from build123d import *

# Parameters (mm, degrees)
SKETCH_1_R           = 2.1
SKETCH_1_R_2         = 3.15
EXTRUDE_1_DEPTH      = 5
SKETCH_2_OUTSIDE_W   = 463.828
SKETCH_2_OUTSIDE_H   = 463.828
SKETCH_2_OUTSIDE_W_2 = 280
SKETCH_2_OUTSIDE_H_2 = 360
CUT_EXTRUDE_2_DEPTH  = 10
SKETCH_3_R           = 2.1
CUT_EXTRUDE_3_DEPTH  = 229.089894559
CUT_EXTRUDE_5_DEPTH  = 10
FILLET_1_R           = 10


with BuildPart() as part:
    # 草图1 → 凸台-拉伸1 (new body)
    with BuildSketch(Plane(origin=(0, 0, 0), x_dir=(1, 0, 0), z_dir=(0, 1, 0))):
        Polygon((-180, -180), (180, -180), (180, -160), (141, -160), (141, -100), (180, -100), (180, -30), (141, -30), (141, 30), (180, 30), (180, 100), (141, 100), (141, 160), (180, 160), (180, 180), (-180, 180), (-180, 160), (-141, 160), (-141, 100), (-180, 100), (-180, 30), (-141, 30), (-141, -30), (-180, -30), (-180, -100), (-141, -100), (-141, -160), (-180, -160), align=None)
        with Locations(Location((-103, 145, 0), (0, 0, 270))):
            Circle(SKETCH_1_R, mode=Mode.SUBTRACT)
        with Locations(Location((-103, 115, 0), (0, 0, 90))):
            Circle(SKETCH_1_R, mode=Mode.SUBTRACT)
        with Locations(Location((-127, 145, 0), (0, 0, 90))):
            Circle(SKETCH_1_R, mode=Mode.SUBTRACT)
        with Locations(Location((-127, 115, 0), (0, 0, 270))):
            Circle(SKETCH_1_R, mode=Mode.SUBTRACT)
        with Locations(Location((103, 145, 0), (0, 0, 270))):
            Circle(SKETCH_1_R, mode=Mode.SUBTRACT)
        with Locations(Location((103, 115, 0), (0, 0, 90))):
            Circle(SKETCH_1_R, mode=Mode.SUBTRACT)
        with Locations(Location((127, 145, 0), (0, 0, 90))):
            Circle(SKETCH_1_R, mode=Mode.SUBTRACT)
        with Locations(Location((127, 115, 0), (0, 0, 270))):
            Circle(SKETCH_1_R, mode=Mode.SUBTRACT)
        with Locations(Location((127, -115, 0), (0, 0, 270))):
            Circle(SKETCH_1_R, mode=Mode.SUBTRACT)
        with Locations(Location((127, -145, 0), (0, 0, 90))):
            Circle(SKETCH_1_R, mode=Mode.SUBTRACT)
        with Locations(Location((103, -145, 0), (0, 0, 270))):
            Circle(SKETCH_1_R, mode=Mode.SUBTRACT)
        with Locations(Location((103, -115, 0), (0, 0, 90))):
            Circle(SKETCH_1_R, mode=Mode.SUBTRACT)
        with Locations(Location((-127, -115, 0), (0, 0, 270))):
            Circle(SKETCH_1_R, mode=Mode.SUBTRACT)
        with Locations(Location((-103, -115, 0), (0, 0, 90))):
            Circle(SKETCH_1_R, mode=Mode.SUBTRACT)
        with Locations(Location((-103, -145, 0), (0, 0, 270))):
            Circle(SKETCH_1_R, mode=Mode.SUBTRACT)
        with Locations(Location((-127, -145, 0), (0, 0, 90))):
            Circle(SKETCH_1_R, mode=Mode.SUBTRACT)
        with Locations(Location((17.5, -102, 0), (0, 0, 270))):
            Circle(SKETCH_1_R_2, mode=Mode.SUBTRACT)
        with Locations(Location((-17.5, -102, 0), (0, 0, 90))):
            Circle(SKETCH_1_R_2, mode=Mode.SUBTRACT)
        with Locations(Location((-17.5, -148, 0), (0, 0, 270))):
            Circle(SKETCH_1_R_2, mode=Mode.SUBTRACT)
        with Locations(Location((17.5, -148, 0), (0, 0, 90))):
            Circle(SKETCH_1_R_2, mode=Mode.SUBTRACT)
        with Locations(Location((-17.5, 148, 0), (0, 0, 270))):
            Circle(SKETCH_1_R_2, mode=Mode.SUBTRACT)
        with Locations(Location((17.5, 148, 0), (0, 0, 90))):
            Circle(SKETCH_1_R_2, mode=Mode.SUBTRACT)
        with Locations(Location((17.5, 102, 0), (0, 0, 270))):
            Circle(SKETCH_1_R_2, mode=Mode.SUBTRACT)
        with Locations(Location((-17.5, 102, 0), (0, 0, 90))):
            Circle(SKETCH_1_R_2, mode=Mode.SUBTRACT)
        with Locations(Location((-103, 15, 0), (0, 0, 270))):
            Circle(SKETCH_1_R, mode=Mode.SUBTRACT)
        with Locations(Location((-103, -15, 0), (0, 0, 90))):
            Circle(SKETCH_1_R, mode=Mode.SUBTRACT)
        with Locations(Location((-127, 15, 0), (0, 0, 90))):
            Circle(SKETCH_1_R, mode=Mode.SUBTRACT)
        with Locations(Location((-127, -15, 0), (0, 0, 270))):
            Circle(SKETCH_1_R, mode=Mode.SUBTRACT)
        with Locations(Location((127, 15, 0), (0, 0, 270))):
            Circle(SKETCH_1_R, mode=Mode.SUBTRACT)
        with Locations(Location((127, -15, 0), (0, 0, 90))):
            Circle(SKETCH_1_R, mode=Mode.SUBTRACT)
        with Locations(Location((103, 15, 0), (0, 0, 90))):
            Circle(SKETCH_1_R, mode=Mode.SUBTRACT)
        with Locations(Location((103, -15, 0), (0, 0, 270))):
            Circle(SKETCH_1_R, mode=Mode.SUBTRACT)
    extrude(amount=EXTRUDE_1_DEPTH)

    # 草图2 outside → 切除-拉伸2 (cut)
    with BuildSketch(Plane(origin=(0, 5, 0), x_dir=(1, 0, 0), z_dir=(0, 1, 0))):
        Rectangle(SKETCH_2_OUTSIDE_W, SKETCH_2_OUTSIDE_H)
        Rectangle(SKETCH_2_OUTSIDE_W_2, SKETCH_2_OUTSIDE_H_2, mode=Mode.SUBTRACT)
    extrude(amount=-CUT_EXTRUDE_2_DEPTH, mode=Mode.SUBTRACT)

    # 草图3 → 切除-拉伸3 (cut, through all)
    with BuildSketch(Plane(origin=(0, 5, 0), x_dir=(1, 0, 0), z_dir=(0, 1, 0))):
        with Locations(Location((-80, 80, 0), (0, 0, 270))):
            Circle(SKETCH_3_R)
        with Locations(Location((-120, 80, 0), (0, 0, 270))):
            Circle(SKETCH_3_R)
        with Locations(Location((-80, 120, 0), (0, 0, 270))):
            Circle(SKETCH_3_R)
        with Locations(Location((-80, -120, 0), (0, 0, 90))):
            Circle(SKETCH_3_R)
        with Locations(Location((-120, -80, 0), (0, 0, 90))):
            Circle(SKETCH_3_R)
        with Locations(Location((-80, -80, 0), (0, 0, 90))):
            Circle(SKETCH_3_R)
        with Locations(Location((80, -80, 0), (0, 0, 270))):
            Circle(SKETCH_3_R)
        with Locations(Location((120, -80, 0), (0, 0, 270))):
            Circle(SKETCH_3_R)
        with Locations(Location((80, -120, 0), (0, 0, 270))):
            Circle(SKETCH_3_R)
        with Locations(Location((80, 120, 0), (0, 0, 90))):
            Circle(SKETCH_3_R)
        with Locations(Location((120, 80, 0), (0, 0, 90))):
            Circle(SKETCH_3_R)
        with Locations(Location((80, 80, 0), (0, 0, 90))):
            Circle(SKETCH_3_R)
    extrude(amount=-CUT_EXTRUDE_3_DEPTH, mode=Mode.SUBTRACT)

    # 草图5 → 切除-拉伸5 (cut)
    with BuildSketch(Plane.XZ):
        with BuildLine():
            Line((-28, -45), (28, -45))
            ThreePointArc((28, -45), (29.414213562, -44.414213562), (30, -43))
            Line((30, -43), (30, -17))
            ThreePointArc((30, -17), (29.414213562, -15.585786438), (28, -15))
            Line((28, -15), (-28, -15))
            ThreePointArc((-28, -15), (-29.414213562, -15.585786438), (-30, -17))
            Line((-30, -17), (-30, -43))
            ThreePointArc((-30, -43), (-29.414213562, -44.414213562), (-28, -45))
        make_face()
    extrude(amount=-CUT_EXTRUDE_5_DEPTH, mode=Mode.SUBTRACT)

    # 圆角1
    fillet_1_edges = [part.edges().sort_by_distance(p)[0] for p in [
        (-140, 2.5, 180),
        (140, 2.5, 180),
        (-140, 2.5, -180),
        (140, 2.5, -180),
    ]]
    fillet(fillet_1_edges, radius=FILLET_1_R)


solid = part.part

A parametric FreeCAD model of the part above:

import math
import FreeCAD as App
import Part
import Sketcher
from FreeCAD import Vector


def edges_at(feature, points):
    """Names of the edges that pass closest to the given points."""
    edges = feature.Shape.Edges
    near = lambda p: min(range(len(edges)), key=lambda i: edges[i].distToShape(Part.Vertex(*p))[0])
    return sorted({f"Edge{near(p) + 1}" for p in points})

doc = App.newDocument("Part")
body = doc.addObject("PartDesign::Body", "Body")

sketch1 = body.newObject("Sketcher::SketchObject", "Sketch")
sketch1.AttachmentSupport = (doc.getObject("XZ_Plane"), [""])
sketch1.MapMode = "FlatFace"
sketch1.addGeometry([
    Part.LineSegment(Vector(-180, 180, 0), Vector(180, 180, 0)),
    Part.LineSegment(Vector(180, 180, 0), Vector(180, 160, 0)),
    Part.LineSegment(Vector(180, 160, 0), Vector(141, 160, 0)),
    Part.LineSegment(Vector(141, 160, 0), Vector(141, 100, 0)),
    Part.LineSegment(Vector(141, 100, 0), Vector(180, 100, 0)),
    Part.LineSegment(Vector(180, 100, 0), Vector(180, 30, 0)),
    Part.LineSegment(Vector(180, 30, 0), Vector(141, 30, 0)),
    Part.LineSegment(Vector(141, 30, 0), Vector(141, -30, 0)),
    Part.LineSegment(Vector(141, -30, 0), Vector(180, -30, 0)),
    Part.LineSegment(Vector(180, -30, 0), Vector(180, -100, 0)),
    Part.LineSegment(Vector(180, -100, 0), Vector(141, -100, 0)),
    Part.LineSegment(Vector(141, -100, 0), Vector(141, -160, 0)),
    Part.LineSegment(Vector(141, -160, 0), Vector(180, -160, 0)),
    Part.LineSegment(Vector(180, -160, 0), Vector(180, -180, 0)),
    Part.LineSegment(Vector(180, -180, 0), Vector(-180, -180, 0)),
    Part.LineSegment(Vector(-180, -180, 0), Vector(-180, -160, 0)),
    Part.LineSegment(Vector(-180, -160, 0), Vector(-141, -160, 0)),
    Part.LineSegment(Vector(-141, -160, 0), Vector(-141, -100, 0)),
    Part.LineSegment(Vector(-141, -100, 0), Vector(-180, -100, 0)),
    Part.LineSegment(Vector(-180, -100, 0), Vector(-180, -30, 0)),
    Part.LineSegment(Vector(-180, -30, 0), Vector(-141, -30, 0)),
    Part.LineSegment(Vector(-141, -30, 0), Vector(-141, 30, 0)),
    Part.LineSegment(Vector(-141, 30, 0), Vector(-180, 30, 0)),
    Part.LineSegment(Vector(-180, 30, 0), Vector(-180, 100, 0)),
    Part.LineSegment(Vector(-180, 100, 0), Vector(-141, 100, 0)),
    Part.LineSegment(Vector(-141, 100, 0), Vector(-141, 160, 0)),
    Part.LineSegment(Vector(-141, 160, 0), Vector(-180, 160, 0)),
    Part.LineSegment(Vector(-180, 160, 0), Vector(-180, 180, 0)),
    Part.Circle(Vector(-127, 145, 0), Vector(0, 0, 1), 2.1),
    Part.Circle(Vector(-103, 145, 0), Vector(0, 0, 1), 2.1),
    Part.Circle(Vector(-127, 115, 0), Vector(0, 0, 1), 2.1),
    Part.Circle(Vector(-103, 115, 0), Vector(0, 0, 1), 2.1),
    Part.Circle(Vector(-17.5, 148, 0), Vector(0, 0, 1), 3.1),
    Part.Circle(Vector(-17.5, 102, 0), Vector(0, 0, 1), 3.1),
    Part.Circle(Vector(-127, 15, 0), Vector(0, 0, 1), 2.1),
    Part.Circle(Vector(-103, 15, 0), Vector(0, 0, 1), 2.1),
    Part.Circle(Vector(17.5, 148, 0), Vector(0, 0, 1), 3.1),
    Part.Circle(Vector(17.5, 102, 0), Vector(0, 0, 1), 3.1),
    Part.Circle(Vector(103, 145, 0), Vector(0, 0, 1), 2.1),
    Part.Circle(Vector(127, 145, 0), Vector(0, 0, 1), 2.1),
    Part.Circle(Vector(103, 115, 0), Vector(0, 0, 1), 2.1),
    Part.Circle(Vector(127, 115, 0), Vector(0, 0, 1), 2.1),
    Part.Circle(Vector(103, 15, 0), Vector(0, 0, 1), 2.1),
    Part.Circle(Vector(127, 15, 0), Vector(0, 0, 1), 2.1),
    Part.Circle(Vector(-127, -15, 0), Vector(0, 0, 1), 2.1),
    Part.Circle(Vector(-103, -15, 0), Vector(0, 0, 1), 2.1),
    Part.Circle(Vector(-127, -115, 0), Vector(0, 0, 1), 2.1),
    Part.Circle(Vector(-103, -115, 0), Vector(0, 0, 1), 2.1),
    Part.Circle(Vector(-127, -145, 0), Vector(0, 0, 1), 2.1),
    Part.Circle(Vector(-103, -145, 0), Vector(0, 0, 1), 2.1),
    Part.Circle(Vector(-17.5, -102, 0), Vector(0, 0, 1), 3.1),
    Part.Circle(Vector(-17.5, -148, 0), Vector(0, 0, 1), 3.1),
    Part.Circle(Vector(103, -15, 0), Vector(0, 0, 1), 2.1),
    Part.Circle(Vector(127, -15, 0), Vector(0, 0, 1), 2.1),
    Part.Circle(Vector(17.5, -102, 0), Vector(0, 0, 1), 3.1),
    Part.Circle(Vector(17.5, -148, 0), Vector(0, 0, 1), 3.1),
    Part.Circle(Vector(103, -115, 0), Vector(0, 0, 1), 2.1),
    Part.Circle(Vector(127, -115, 0), Vector(0, 0, 1), 2.1),
    Part.Circle(Vector(103, -145, 0), Vector(0, 0, 1), 2.1),
    Part.Circle(Vector(127, -145, 0), Vector(0, 0, 1), 2.1),
], False)
sketch1.addConstraint([
    Sketcher.Constraint("Coincident", 0, 2, 1, 1),
    Sketcher.Constraint("Coincident", 1, 2, 2, 1),
    Sketcher.Constraint("Coincident", 2, 2, 3, 1),
    Sketcher.Constraint("Coincident", 3, 2, 4, 1),
    Sketcher.Constraint("Coincident", 4, 2, 5, 1),
    Sketcher.Constraint("Coincident", 5, 2, 6, 1),
    Sketcher.Constraint("Coincident", 6, 2, 7, 1),
    Sketcher.Constraint("Coincident", 7, 2, 8, 1),
    Sketcher.Constraint("Coincident", 8, 2, 9, 1),
    Sketcher.Constraint("Coincident", 9, 2, 10, 1),
    Sketcher.Constraint("Coincident", 10, 2, 11, 1),
    Sketcher.Constraint("Coincident", 11, 2, 12, 1),
    Sketcher.Constraint("Coincident", 12, 2, 13, 1),
    Sketcher.Constraint("Coincident", 13, 2, 14, 1),
    Sketcher.Constraint("Coincident", 14, 2, 15, 1),
    Sketcher.Constraint("Coincident", 15, 2, 16, 1),
    Sketcher.Constraint("Coincident", 16, 2, 17, 1),
    Sketcher.Constraint("Coincident", 17, 2, 18, 1),
    Sketcher.Constraint("Coincident", 18, 2, 19, 1),
    Sketcher.Constraint("Coincident", 19, 2, 20, 1),
    Sketcher.Constraint("Coincident", 20, 2, 21, 1),
    Sketcher.Constraint("Coincident", 21, 2, 22, 1),
    Sketcher.Constraint("Coincident", 22, 2, 23, 1),
    Sketcher.Constraint("Coincident", 23, 2, 24, 1),
    Sketcher.Constraint("Coincident", 24, 2, 25, 1),
    Sketcher.Constraint("Coincident", 25, 2, 26, 1),
    Sketcher.Constraint("Coincident", 26, 2, 27, 1),
    Sketcher.Constraint("Coincident", 27, 2, 0, 1),
    Sketcher.Constraint("Horizontal", 0),
    Sketcher.Constraint("Vertical", 1),
    Sketcher.Constraint("Horizontal", 2),
    Sketcher.Constraint("Vertical", 3),
    Sketcher.Constraint("Horizontal", 4),
    Sketcher.Constraint("Vertical", 5),
    Sketcher.Constraint("Horizontal", 6),
    Sketcher.Constraint("Vertical", 7),
    Sketcher.Constraint("Horizontal", 8),
    Sketcher.Constraint("Vertical", 9),
    Sketcher.Constraint("Horizontal", 10),
    Sketcher.Constraint("Vertical", 11),
    Sketcher.Constraint("Horizontal", 12),
    Sketcher.Constraint("Vertical", 13),
    Sketcher.Constraint("Horizontal", 14),
    Sketcher.Constraint("Vertical", 15),
    Sketcher.Constraint("Horizontal", 16),
    Sketcher.Constraint("Vertical", 17),
    Sketcher.Constraint("Horizontal", 18),
    Sketcher.Constraint("Vertical", 19),
    Sketcher.Constraint("Horizontal", 20),
    Sketcher.Constraint("Vertical", 21),
    Sketcher.Constraint("Horizontal", 22),
    Sketcher.Constraint("Vertical", 23),
    Sketcher.Constraint("Horizontal", 24),
    Sketcher.Constraint("Vertical", 25),
    Sketcher.Constraint("Horizontal", 26),
    Sketcher.Constraint("Vertical", 27),
    Sketcher.Constraint("Equal", 28, 29),
    Sketcher.Constraint("Equal", 29, 30),
    Sketcher.Constraint("Equal", 30, 31),
    Sketcher.Constraint("Equal", 32, 33),
    Sketcher.Constraint("Equal", 31, 34),
    Sketcher.Constraint("Equal", 34, 35),
    Sketcher.Constraint("Equal", 33, 36),
    Sketcher.Constraint("Equal", 36, 37),
    Sketcher.Constraint("Equal", 35, 38),
    Sketcher.Constraint("Equal", 38, 39),
    Sketcher.Constraint("Equal", 39, 40),
    Sketcher.Constraint("Equal", 40, 41),
    Sketcher.Constraint("Equal", 41, 42),
    Sketcher.Constraint("Equal", 42, 43),
    Sketcher.Constraint("Equal", 43, 44),
    Sketcher.Constraint("Equal", 44, 45),
    Sketcher.Constraint("Equal", 45, 46),
    Sketcher.Constraint("Equal", 46, 47),
    Sketcher.Constraint("Equal", 47, 48),
    Sketcher.Constraint("Equal", 48, 49),
    Sketcher.Constraint("Equal", 37, 50),
    Sketcher.Constraint("Equal", 50, 51),
    Sketcher.Constraint("Equal", 49, 52),
    Sketcher.Constraint("Equal", 52, 53),
    Sketcher.Constraint("Equal", 51, 54),
    Sketcher.Constraint("Equal", 54, 55),
    Sketcher.Constraint("Equal", 53, 56),
    Sketcher.Constraint("Equal", 56, 57),
    Sketcher.Constraint("Equal", 57, 58),
    Sketcher.Constraint("Equal", 58, 59),
    Sketcher.Constraint("Symmetric", 43, 3, 44, 3, -1, 1),
    Sketcher.Constraint("Symmetric", 42, 3, 45, 3, -1, 1),
    Sketcher.Constraint("Symmetric", 41, 3, 46, 3, -1, 1),
    Sketcher.Constraint("Symmetric", 40, 3, 47, 3, -1, 1),
    Sketcher.Constraint("Symmetric", 39, 3, 48, 3, -1, 1),
    Sketcher.Constraint("Symmetric", 38, 3, 49, 3, -1, 1),
    Sketcher.Constraint("Symmetric", 37, 3, 50, 3, -1, 1),
    Sketcher.Constraint("Symmetric", 36, 3, 51, 3, -1, 1),
    Sketcher.Constraint("Symmetric", 35, 3, 52, 3, -1, 1),
    Sketcher.Constraint("Symmetric", 34, 3, 53, 3, -1, 1),
    Sketcher.Constraint("Symmetric", 33, 3, 54, 3, -1, 1),
    Sketcher.Constraint("Symmetric", 32, 3, 55, 3, -1, 1),
    Sketcher.Constraint("Symmetric", 31, 3, 56, 3, -1, 1),
    Sketcher.Constraint("Symmetric", 30, 3, 57, 3, -1, 1),
    Sketcher.Constraint("Symmetric", 29, 3, 58, 3, -1, 1),
    Sketcher.Constraint("Symmetric", 28, 3, 59, 3, -1, 1),
    Sketcher.Constraint("Symmetric", 0, 2, 14, 2, -1, 1),
    Sketcher.Constraint("Symmetric", 2, 2, 16, 2, -1, 1),
    Sketcher.Constraint("Symmetric", 4, 2, 18, 2, -1, 1),
    Sketcher.Constraint("Symmetric", 6, 2, 20, 2, -1, 1),
    Sketcher.Constraint("Symmetric", 8, 2, 22, 2, -1, 1),
    Sketcher.Constraint("Symmetric", 10, 2, 24, 2, -1, 1),
    Sketcher.Constraint("Symmetric", 12, 2, 26, 2, -1, 1),
    Sketcher.Constraint("Symmetric", 32, 3, 36, 3, -2),
    Sketcher.Constraint("Symmetric", 33, 3, 37, 3, -2),
    Sketcher.Constraint("Symmetric", 29, 3, 38, 3, -2),
    Sketcher.Constraint("Symmetric", 28, 3, 39, 3, -2),
    Sketcher.Constraint("Symmetric", 31, 3, 40, 3, -2),
    Sketcher.Constraint("Symmetric", 30, 3, 41, 3, -2),
    Sketcher.Constraint("Symmetric", 35, 3, 42, 3, -2),
    Sketcher.Constraint("Symmetric", 34, 3, 43, 3, -2),
    Sketcher.Constraint("Symmetric", 12, 2, 15, 2, -2),
    Sketcher.Constraint("Symmetric", 10, 2, 17, 2, -2),
    Sketcher.Constraint("Symmetric", 8, 2, 19, 2, -2),
    Sketcher.Constraint("Horizontal", 28, 3, 29, 3),
    Sketcher.Constraint("Horizontal", 30, 3, 31, 3),
    Sketcher.Constraint("Horizontal", 34, 3, 35, 3),
    Sketcher.Constraint("Vertical", 28, 3, 30, 3),
    Sketcher.Constraint("Vertical", 29, 3, 31, 3),
    Sketcher.Constraint("Vertical", 32, 3, 33, 3),
    Sketcher.Constraint("Vertical", 30, 3, 34, 3),
    Sketcher.Constraint("Vertical", 31, 3, 35, 3),
    Sketcher.Constraint("Vertical", 1, 2, 4, 2),
    Sketcher.Constraint("Vertical", 3, 2, 6, 2),
    Sketcher.Constraint("Equal", 3, 7),
    Sketcher.Constraint("Diameter", 28, 4.2),
    Sketcher.Constraint("Diameter", 32, 6.3),
    Sketcher.Constraint("DistanceX", 0, 1, 0, 2, 360.0),
    Sketcher.Constraint("DistanceX", 2, 2, 2, 1, 39.0),
    Sketcher.Constraint("DistanceY", 1, 2, 1, 1, 20.0),
    Sketcher.Constraint("DistanceY", 3, 2, 3, 1, 60.0),
    Sketcher.Constraint("DistanceY", 5, 2, 5, 1, 70.0),
    Sketcher.Constraint("DistanceX", 28, 3, -1, 1, 127.0),
    Sketcher.Constraint("DistanceY", -1, 1, 28, 3, 145.0),
    Sketcher.Constraint("DistanceX", 29, 3, -1, 1, 103.0),
    Sketcher.Constraint("DistanceY", -1, 1, 30, 3, 115.0),
    Sketcher.Constraint("DistanceY", -1, 1, 32, 3, 148.0),
    Sketcher.Constraint("DistanceY", -1, 1, 33, 3, 102.0),
    Sketcher.Constraint("DistanceY", -1, 1, 34, 3, 15.0),
    Sketcher.Constraint("DistanceX", 32, 3, 36, 3, 35.0),
])
pad1 = body.newObject("PartDesign::Pad", "Pad")
pad1.Profile = sketch1
pad1.Length = 5
pad1.Reversed = True

sketch2 = body.newObject("Sketcher::SketchObject", "Sketch001")
sketch2.AttachmentSupport = (doc.getObject("XZ_Plane"), [""])
sketch2.MapMode = "FlatFace"
sketch2.AttachmentOffset = App.Placement(Vector(0, 0, -5), App.Rotation())
sketch2.addGeometry([
    Part.LineSegment(Vector(-232, -232, 0), Vector(-232, 232, 0)),
    Part.LineSegment(Vector(-232, 232, 0), Vector(232, 232, 0)),
    Part.LineSegment(Vector(232, 232, 0), Vector(232, -232, 0)),
    Part.LineSegment(Vector(232, -232, 0), Vector(-232, -232, 0)),
    Part.LineSegment(Vector(140, 180, 0), Vector(-140, 180, 0)),
    Part.LineSegment(Vector(-140, 180, 0), Vector(-140, -180, 0)),
    Part.LineSegment(Vector(-140, -180, 0), Vector(140, -180, 0)),
    Part.LineSegment(Vector(140, -180, 0), Vector(140, 180, 0)),
], False)
sketch2.addConstraint([
    Sketcher.Constraint("Coincident", 0, 2, 1, 1),
    Sketcher.Constraint("Coincident", 1, 2, 2, 1),
    Sketcher.Constraint("Coincident", 2, 2, 3, 1),
    Sketcher.Constraint("Coincident", 3, 2, 0, 1),
    Sketcher.Constraint("Coincident", 4, 2, 5, 1),
    Sketcher.Constraint("Coincident", 5, 2, 6, 1),
    Sketcher.Constraint("Coincident", 6, 2, 7, 1),
    Sketcher.Constraint("Coincident", 7, 2, 4, 1),
    Sketcher.Constraint("Vertical", 0),
    Sketcher.Constraint("Horizontal", 1),
    Sketcher.Constraint("Vertical", 2),
    Sketcher.Constraint("Horizontal", 3),
    Sketcher.Constraint("Horizontal", 4),
    Sketcher.Constraint("Vertical", 5),
    Sketcher.Constraint("Horizontal", 6),
    Sketcher.Constraint("Vertical", 7),
    Sketcher.Constraint("Symmetric", 0, 2, 2, 2, -1, 1),
    Sketcher.Constraint("Symmetric", 4, 2, 6, 2, -1, 1),
    Sketcher.Constraint("Equal", 3, 0),
    Sketcher.Constraint("DistanceX", 4, 2, 4, 1, 280.0),
    Sketcher.Constraint("DistanceY", 5, 2, 5, 1, 360.0),
    Sketcher.Constraint("DistanceX", 1, 1, 1, 2, 463.828),
])
pocket1 = body.newObject("PartDesign::Pocket", "Pocket")
pocket1.Profile = sketch2
pocket1.Length = 10
pocket1.Reversed = True

sketch3 = body.newObject("Sketcher::SketchObject", "Sketch002")
sketch3.AttachmentSupport = (doc.getObject("XZ_Plane"), [""])
sketch3.MapMode = "FlatFace"
sketch3.AttachmentOffset = App.Placement(Vector(0, 0, -5), App.Rotation())
sketch3.addGeometry([
    Part.Circle(Vector(-80, -80, 0), Vector(0, 0, 1), 2.1),
    Part.Circle(Vector(-120, -80, 0), Vector(0, 0, 1), 2.1),
    Part.Circle(Vector(-80, -120, 0), Vector(0, 0, 1), 2.1),
    Part.Circle(Vector(-80, 120, 0), Vector(0, 0, 1), 2.1),
    Part.Circle(Vector(-120, 80, 0), Vector(0, 0, 1), 2.1),
    Part.Circle(Vector(-80, 80, 0), Vector(0, 0, 1), 2.1),
    Part.Circle(Vector(80, 80, 0), Vector(0, 0, 1), 2.1),
    Part.Circle(Vector(120, 80, 0), Vector(0, 0, 1), 2.1),
    Part.Circle(Vector(80, 120, 0), Vector(0, 0, 1), 2.1),
    Part.Circle(Vector(80, -120, 0), Vector(0, 0, 1), 2.1),
    Part.Circle(Vector(120, -80, 0), Vector(0, 0, 1), 2.1),
    Part.Circle(Vector(80, -80, 0), Vector(0, 0, 1), 2.1),
], False)
sketch3.addConstraint([
    Sketcher.Constraint("Equal", 0, 1),
    Sketcher.Constraint("Equal", 1, 2),
    Sketcher.Constraint("Equal", 2, 3),
    Sketcher.Constraint("Equal", 3, 4),
    Sketcher.Constraint("Equal", 4, 5),
    Sketcher.Constraint("Equal", 5, 6),
    Sketcher.Constraint("Equal", 6, 7),
    Sketcher.Constraint("Equal", 7, 8),
    Sketcher.Constraint("Equal", 8, 9),
    Sketcher.Constraint("Equal", 9, 10),
    Sketcher.Constraint("Equal", 10, 11),
    Sketcher.Constraint("Symmetric", 0, 3, 6, 3, -1, 1),
    Sketcher.Constraint("Symmetric", 1, 3, 7, 3, -1, 1),
    Sketcher.Constraint("Symmetric", 2, 3, 8, 3, -1, 1),
    Sketcher.Constraint("Symmetric", 3, 3, 9, 3, -1, 1),
    Sketcher.Constraint("Symmetric", 4, 3, 10, 3, -1, 1),
    Sketcher.Constraint("Symmetric", 5, 3, 11, 3, -1, 1),
    Sketcher.Constraint("Symmetric", 5, 3, 6, 3, -2),
    Sketcher.Constraint("Symmetric", 4, 3, 7, 3, -2),
    Sketcher.Constraint("Symmetric", 3, 3, 8, 3, -2),
    Sketcher.Constraint("Horizontal", 0, 3, 1, 3),
    Sketcher.Constraint("Vertical", 0, 3, 2, 3),
    Sketcher.Constraint("Diameter", 0, 4.2),
    Sketcher.Constraint("DistanceX", 0, 3, -1, 1, 80.0),
    Sketcher.Constraint("DistanceY", 0, 3, -1, 1, 80.0),
    Sketcher.Constraint("DistanceX", 1, 3, -1, 1, 120.0),
    Sketcher.Constraint("DistanceY", 2, 3, -1, 1, 120.0),
])
pocket2 = body.newObject("PartDesign::Pocket", "Pocket001")
pocket2.Profile = sketch3
pocket2.Type = "ThroughAll"
pocket2.Reversed = True

sketch4 = body.newObject("Sketcher::SketchObject", "Sketch003")
sketch4.AttachmentSupport = (doc.getObject("XZ_Plane"), [""])
sketch4.MapMode = "FlatFace"
sketch4.addGeometry([
    Part.LineSegment(Vector(-28, -45, 0), Vector(28, -45, 0)),
    Part.ArcOfCircle(Part.Circle(Vector(28, -43, 0), Vector(0, 0, 1), 2), math.radians(-90), math.radians(0)),
    Part.LineSegment(Vector(30, -43, 0), Vector(30, -17, 0)),
    Part.ArcOfCircle(Part.Circle(Vector(28, -17, 0), Vector(0, 0, 1), 2), math.radians(0), math.radians(90)),
    Part.LineSegment(Vector(28, -15, 0), Vector(-28, -15, 0)),
    Part.ArcOfCircle(Part.Circle(Vector(-28, -17, 0), Vector(0, 0, 1), 2), math.radians(90), math.radians(180)),
    Part.LineSegment(Vector(-30, -17, 0), Vector(-30, -43, 0)),
    Part.ArcOfCircle(Part.Circle(Vector(-28, -43, 0), Vector(0, 0, 1), 2), math.radians(-180), math.radians(-90)),
], False)
sketch4.addConstraint([
    Sketcher.Constraint("Tangent", 0, 2, 1, 1),
    Sketcher.Constraint("Tangent", 1, 2, 2, 1),
    Sketcher.Constraint("Tangent", 2, 2, 3, 1),
    Sketcher.Constraint("Tangent", 3, 2, 4, 1),
    Sketcher.Constraint("Tangent", 4, 2, 5, 1),
    Sketcher.Constraint("Tangent", 5, 2, 6, 1),
    Sketcher.Constraint("Tangent", 6, 2, 7, 1),
    Sketcher.Constraint("Tangent", 7, 2, 0, 1),
    Sketcher.Constraint("Horizontal", 0),
    Sketcher.Constraint("Vertical", 2),
    Sketcher.Constraint("Horizontal", 4),
    Sketcher.Constraint("Vertical", 6),
    Sketcher.Constraint("Equal", 1, 3),
    Sketcher.Constraint("Equal", 3, 5),
    Sketcher.Constraint("Equal", 5, 7),
    Sketcher.Constraint("Radius", 1, 2.0),
    Sketcher.Constraint("DistanceX", 0, 1, 0, 2, 56.0),
    Sketcher.Constraint("DistanceY", 2, 1, 2, 2, 26.0),
    Sketcher.Constraint("DistanceX", -1, 1, 1, 3, 28.0),
    Sketcher.Constraint("DistanceY", 1, 3, -1, 1, 43.0),
])
pocket3 = body.newObject("PartDesign::Pocket", "Pocket002")
pocket3.Profile = sketch4
pocket3.Length = 10
doc.recompute()

fillet = body.newObject("PartDesign::Fillet", "Fillet")
fillet.Base = (pocket3, edges_at(pocket3, [
    (-140, 2.5, 180),
    (140, 2.5, 180),
    (-140, 2.5, -180),
    (140, 2.5, -180),
]))
fillet.Radius = 10

doc.recompute()
